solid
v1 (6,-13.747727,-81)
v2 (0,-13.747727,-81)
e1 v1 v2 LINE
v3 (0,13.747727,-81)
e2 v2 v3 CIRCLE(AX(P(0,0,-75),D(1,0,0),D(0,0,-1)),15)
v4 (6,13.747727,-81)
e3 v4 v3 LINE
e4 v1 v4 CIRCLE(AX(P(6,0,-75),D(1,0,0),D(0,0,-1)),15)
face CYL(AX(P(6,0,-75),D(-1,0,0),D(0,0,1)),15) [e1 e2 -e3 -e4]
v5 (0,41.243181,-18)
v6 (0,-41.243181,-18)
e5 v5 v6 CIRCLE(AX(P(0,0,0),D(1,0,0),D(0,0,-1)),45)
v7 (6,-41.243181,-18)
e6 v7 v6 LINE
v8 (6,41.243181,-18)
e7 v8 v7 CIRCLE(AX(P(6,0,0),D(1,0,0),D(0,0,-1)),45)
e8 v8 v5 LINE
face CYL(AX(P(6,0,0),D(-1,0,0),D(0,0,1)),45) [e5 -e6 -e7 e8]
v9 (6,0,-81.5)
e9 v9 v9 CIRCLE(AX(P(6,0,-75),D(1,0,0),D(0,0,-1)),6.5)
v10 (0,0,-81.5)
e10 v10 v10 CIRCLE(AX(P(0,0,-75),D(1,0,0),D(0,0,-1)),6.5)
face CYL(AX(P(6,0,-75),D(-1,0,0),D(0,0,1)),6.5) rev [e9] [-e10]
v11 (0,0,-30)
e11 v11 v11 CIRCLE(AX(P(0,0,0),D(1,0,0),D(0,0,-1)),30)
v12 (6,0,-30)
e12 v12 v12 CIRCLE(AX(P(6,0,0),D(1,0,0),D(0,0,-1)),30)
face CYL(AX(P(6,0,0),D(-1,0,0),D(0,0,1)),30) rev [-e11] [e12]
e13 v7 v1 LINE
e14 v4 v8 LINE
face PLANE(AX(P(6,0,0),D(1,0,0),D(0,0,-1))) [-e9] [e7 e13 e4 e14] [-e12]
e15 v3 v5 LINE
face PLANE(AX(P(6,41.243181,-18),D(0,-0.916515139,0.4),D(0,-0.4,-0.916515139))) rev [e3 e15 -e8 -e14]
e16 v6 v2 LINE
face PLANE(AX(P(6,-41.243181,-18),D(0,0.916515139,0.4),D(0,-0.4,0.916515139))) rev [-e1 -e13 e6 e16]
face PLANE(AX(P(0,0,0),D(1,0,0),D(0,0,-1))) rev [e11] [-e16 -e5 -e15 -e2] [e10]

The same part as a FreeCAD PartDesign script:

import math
import FreeCAD as App
import Part
import Sketcher

V = App.Vector

doc = App.newDocument("Part")
body = doc.addObject("PartDesign::Body", "Body")

# Sketch on YZ plane
sketch1 = doc.addObject("Sketcher::SketchObject", "Sketch")
body.addObject(sketch1)
sketch1.AttachmentSupport = (doc.YZ_Plane, [""])
sketch1.MapMode = "FlatFace"
sketch1.addGeometry([
    Part.LineSegment(V(14, -81, 0), V(41, -18, 0)),  # 0
    Part.ArcOfCircle(Part.Circle(V(0, 0, 0), V(0, 0, 1), 45), math.radians(-24), math.radians(204)),  # 1
    Part.LineSegment(V(-41, -18, 0), V(-14, -81, 0)),  # 2
    Part.ArcOfCircle(Part.Circle(V(0, -75, 0), V(0, 0, 1), 15), math.radians(-156), math.radians(-24)),  # 3
    Part.Circle(V(0, -75, 0), V(0, 0, 1), 6),  # 4
    Part.Circle(V(0, 0, 0), V(0, 0, 1), 30),  # 5
], False)
sketch1.addConstraint([
    Sketcher.Constraint("Tangent", 0, 2, 1, 1),
    Sketcher.Constraint("Tangent", 1, 2, 2, 1),
    Sketcher.Constraint("Tangent", 2, 2, 3, 1),
    Sketcher.Constraint("Tangent", 3, 2, 0, 1),
    Sketcher.Constraint("Coincident", 1, 3, -1, 1),
    Sketcher.Constraint("Coincident", 5, 3, -1, 1),
    Sketcher.Constraint("Coincident", 4, 3, 3, 3),
    Sketcher.Constraint("PointOnObject", 3, 3, -2),
    Sketcher.Constraint("Diameter", 4, 13.0),
    Sketcher.Constraint("Diameter", 5, 60.0),
    Sketcher.Constraint("Radius", 1, 45.0),
    Sketcher.Constraint("Radius", 3, 15.0),
    Sketcher.Constraint("DistanceY", 3, 3, -1, 1, 75.0),
])
pad1 = doc.addObject("PartDesign::Pad", "Pad")
body.addObject(pad1)
pad1.Profile = sketch1
pad1.Length = 6

doc.recompute()
